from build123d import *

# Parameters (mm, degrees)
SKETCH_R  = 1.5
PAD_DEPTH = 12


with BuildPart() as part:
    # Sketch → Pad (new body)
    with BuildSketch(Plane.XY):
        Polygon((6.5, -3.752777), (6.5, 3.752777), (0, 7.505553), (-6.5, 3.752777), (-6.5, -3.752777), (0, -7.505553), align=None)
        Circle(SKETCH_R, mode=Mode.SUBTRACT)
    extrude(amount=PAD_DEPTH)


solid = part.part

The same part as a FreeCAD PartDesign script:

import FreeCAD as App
import Part
import Sketcher
from FreeCAD import Vector
Q = App.Units.Quantity

doc = App.newDocument("Part")
body = doc.addObject("PartDesign::Body", "Body")

# Sketch on XY plane
sketch1 = body.newObject("Sketcher::SketchObject", "Sketch")
sketch1.AttachmentSupport = (doc.getObject("XY_Plane"), [""])
sketch1.MapMode = "FlatFace"
sketch1.addGeometry(Part.LineSegment(Vector(6.5, -3.8, 0), Vector(6.5, 3.8, 0)), False)
sketch1.addGeometry(Part.LineSegment(Vector(6.5, 3.8, 0), Vector(0, 7.5, 0)), False)
sketch1.addGeometry(Part.LineSegment(Vector(0, 7.5, 0), Vector(-6.5, 3.8, 0)), False)
sketch1.addGeometry(Part.LineSegment(Vector(-6.5, 3.8, 0), Vector(-6.5, -3.8, 0)), False)
sketch1.addGeometry(Part.LineSegment(Vector(-6.5, -3.8, 0), Vector(0, -7.5, 0)), False)
sketch1.addGeometry(Part.LineSegment(Vector(0, -7.5, 0), Vector(6.5, -3.8, 0)), False)
sketch1.addGeometry(Part.Circle(Vector(0, 0, 0), Vector(0, 0, 1), 1.5), False)
sketch1.addConstraint(Sketcher.Constraint("Coincident", 0, 2, 1, 1))
sketch1.addConstraint(Sketcher.Constraint("Coincident", 1, 2, 2, 1))
sketch1.addConstraint(Sketcher.Constraint("Coincident", 2, 2, 3, 1))
sketch1.addConstraint(Sketcher.Constraint("Coincident", 3, 2, 4, 1))
sketch1.addConstraint(Sketcher.Constraint("Coincident", 4, 2, 5, 1))
sketch1.addConstraint(Sketcher.Constraint("Coincident", 5, 2, 0, 1))
sketch1.addConstraint(Sketcher.Constraint("Vertical", 0))
sketch1.addConstraint(Sketcher.Constraint("Vertical", 3))
sketch1.addConstraint(Sketcher.Constraint("Coincident", 6, 3, -1, 1))
sketch1.addConstraint(Sketcher.Constraint("Symmetric", 0, 2, 3, 2, -1, 1))
sketch1.addConstraint(Sketcher.Constraint("Symmetric", 1, 2, 4, 2, -1, 1))
sketch1.addConstraint(Sketcher.Constraint("PointOnObject", 1, 2, -2))
sketch1.addConstraint(Sketcher.Constraint("Parallel", 2, 5))
sketch1.addConstraint(Sketcher.Constraint("Horizontal", 0, 2, 2, 2))
sketch1.addConstraint(Sketcher.Constraint("Diameter", 6, 3.0))
sketch1.addConstraint(Sketcher.Constraint("Angle", 1, Q("150.000005 deg")))
sketch1.addConstraint(Sketcher.Constraint("DistanceX", 2, 2, 0, 2, 13.0))
sketch1.addConstraint(Sketcher.Constraint("DistanceY", 0, 1, 0, 2, 7.505554))
pad1 = body.newObject("PartDesign::Pad", "Pad")
pad1.Profile = sketch1
pad1.Length = 12

doc.recompute()
